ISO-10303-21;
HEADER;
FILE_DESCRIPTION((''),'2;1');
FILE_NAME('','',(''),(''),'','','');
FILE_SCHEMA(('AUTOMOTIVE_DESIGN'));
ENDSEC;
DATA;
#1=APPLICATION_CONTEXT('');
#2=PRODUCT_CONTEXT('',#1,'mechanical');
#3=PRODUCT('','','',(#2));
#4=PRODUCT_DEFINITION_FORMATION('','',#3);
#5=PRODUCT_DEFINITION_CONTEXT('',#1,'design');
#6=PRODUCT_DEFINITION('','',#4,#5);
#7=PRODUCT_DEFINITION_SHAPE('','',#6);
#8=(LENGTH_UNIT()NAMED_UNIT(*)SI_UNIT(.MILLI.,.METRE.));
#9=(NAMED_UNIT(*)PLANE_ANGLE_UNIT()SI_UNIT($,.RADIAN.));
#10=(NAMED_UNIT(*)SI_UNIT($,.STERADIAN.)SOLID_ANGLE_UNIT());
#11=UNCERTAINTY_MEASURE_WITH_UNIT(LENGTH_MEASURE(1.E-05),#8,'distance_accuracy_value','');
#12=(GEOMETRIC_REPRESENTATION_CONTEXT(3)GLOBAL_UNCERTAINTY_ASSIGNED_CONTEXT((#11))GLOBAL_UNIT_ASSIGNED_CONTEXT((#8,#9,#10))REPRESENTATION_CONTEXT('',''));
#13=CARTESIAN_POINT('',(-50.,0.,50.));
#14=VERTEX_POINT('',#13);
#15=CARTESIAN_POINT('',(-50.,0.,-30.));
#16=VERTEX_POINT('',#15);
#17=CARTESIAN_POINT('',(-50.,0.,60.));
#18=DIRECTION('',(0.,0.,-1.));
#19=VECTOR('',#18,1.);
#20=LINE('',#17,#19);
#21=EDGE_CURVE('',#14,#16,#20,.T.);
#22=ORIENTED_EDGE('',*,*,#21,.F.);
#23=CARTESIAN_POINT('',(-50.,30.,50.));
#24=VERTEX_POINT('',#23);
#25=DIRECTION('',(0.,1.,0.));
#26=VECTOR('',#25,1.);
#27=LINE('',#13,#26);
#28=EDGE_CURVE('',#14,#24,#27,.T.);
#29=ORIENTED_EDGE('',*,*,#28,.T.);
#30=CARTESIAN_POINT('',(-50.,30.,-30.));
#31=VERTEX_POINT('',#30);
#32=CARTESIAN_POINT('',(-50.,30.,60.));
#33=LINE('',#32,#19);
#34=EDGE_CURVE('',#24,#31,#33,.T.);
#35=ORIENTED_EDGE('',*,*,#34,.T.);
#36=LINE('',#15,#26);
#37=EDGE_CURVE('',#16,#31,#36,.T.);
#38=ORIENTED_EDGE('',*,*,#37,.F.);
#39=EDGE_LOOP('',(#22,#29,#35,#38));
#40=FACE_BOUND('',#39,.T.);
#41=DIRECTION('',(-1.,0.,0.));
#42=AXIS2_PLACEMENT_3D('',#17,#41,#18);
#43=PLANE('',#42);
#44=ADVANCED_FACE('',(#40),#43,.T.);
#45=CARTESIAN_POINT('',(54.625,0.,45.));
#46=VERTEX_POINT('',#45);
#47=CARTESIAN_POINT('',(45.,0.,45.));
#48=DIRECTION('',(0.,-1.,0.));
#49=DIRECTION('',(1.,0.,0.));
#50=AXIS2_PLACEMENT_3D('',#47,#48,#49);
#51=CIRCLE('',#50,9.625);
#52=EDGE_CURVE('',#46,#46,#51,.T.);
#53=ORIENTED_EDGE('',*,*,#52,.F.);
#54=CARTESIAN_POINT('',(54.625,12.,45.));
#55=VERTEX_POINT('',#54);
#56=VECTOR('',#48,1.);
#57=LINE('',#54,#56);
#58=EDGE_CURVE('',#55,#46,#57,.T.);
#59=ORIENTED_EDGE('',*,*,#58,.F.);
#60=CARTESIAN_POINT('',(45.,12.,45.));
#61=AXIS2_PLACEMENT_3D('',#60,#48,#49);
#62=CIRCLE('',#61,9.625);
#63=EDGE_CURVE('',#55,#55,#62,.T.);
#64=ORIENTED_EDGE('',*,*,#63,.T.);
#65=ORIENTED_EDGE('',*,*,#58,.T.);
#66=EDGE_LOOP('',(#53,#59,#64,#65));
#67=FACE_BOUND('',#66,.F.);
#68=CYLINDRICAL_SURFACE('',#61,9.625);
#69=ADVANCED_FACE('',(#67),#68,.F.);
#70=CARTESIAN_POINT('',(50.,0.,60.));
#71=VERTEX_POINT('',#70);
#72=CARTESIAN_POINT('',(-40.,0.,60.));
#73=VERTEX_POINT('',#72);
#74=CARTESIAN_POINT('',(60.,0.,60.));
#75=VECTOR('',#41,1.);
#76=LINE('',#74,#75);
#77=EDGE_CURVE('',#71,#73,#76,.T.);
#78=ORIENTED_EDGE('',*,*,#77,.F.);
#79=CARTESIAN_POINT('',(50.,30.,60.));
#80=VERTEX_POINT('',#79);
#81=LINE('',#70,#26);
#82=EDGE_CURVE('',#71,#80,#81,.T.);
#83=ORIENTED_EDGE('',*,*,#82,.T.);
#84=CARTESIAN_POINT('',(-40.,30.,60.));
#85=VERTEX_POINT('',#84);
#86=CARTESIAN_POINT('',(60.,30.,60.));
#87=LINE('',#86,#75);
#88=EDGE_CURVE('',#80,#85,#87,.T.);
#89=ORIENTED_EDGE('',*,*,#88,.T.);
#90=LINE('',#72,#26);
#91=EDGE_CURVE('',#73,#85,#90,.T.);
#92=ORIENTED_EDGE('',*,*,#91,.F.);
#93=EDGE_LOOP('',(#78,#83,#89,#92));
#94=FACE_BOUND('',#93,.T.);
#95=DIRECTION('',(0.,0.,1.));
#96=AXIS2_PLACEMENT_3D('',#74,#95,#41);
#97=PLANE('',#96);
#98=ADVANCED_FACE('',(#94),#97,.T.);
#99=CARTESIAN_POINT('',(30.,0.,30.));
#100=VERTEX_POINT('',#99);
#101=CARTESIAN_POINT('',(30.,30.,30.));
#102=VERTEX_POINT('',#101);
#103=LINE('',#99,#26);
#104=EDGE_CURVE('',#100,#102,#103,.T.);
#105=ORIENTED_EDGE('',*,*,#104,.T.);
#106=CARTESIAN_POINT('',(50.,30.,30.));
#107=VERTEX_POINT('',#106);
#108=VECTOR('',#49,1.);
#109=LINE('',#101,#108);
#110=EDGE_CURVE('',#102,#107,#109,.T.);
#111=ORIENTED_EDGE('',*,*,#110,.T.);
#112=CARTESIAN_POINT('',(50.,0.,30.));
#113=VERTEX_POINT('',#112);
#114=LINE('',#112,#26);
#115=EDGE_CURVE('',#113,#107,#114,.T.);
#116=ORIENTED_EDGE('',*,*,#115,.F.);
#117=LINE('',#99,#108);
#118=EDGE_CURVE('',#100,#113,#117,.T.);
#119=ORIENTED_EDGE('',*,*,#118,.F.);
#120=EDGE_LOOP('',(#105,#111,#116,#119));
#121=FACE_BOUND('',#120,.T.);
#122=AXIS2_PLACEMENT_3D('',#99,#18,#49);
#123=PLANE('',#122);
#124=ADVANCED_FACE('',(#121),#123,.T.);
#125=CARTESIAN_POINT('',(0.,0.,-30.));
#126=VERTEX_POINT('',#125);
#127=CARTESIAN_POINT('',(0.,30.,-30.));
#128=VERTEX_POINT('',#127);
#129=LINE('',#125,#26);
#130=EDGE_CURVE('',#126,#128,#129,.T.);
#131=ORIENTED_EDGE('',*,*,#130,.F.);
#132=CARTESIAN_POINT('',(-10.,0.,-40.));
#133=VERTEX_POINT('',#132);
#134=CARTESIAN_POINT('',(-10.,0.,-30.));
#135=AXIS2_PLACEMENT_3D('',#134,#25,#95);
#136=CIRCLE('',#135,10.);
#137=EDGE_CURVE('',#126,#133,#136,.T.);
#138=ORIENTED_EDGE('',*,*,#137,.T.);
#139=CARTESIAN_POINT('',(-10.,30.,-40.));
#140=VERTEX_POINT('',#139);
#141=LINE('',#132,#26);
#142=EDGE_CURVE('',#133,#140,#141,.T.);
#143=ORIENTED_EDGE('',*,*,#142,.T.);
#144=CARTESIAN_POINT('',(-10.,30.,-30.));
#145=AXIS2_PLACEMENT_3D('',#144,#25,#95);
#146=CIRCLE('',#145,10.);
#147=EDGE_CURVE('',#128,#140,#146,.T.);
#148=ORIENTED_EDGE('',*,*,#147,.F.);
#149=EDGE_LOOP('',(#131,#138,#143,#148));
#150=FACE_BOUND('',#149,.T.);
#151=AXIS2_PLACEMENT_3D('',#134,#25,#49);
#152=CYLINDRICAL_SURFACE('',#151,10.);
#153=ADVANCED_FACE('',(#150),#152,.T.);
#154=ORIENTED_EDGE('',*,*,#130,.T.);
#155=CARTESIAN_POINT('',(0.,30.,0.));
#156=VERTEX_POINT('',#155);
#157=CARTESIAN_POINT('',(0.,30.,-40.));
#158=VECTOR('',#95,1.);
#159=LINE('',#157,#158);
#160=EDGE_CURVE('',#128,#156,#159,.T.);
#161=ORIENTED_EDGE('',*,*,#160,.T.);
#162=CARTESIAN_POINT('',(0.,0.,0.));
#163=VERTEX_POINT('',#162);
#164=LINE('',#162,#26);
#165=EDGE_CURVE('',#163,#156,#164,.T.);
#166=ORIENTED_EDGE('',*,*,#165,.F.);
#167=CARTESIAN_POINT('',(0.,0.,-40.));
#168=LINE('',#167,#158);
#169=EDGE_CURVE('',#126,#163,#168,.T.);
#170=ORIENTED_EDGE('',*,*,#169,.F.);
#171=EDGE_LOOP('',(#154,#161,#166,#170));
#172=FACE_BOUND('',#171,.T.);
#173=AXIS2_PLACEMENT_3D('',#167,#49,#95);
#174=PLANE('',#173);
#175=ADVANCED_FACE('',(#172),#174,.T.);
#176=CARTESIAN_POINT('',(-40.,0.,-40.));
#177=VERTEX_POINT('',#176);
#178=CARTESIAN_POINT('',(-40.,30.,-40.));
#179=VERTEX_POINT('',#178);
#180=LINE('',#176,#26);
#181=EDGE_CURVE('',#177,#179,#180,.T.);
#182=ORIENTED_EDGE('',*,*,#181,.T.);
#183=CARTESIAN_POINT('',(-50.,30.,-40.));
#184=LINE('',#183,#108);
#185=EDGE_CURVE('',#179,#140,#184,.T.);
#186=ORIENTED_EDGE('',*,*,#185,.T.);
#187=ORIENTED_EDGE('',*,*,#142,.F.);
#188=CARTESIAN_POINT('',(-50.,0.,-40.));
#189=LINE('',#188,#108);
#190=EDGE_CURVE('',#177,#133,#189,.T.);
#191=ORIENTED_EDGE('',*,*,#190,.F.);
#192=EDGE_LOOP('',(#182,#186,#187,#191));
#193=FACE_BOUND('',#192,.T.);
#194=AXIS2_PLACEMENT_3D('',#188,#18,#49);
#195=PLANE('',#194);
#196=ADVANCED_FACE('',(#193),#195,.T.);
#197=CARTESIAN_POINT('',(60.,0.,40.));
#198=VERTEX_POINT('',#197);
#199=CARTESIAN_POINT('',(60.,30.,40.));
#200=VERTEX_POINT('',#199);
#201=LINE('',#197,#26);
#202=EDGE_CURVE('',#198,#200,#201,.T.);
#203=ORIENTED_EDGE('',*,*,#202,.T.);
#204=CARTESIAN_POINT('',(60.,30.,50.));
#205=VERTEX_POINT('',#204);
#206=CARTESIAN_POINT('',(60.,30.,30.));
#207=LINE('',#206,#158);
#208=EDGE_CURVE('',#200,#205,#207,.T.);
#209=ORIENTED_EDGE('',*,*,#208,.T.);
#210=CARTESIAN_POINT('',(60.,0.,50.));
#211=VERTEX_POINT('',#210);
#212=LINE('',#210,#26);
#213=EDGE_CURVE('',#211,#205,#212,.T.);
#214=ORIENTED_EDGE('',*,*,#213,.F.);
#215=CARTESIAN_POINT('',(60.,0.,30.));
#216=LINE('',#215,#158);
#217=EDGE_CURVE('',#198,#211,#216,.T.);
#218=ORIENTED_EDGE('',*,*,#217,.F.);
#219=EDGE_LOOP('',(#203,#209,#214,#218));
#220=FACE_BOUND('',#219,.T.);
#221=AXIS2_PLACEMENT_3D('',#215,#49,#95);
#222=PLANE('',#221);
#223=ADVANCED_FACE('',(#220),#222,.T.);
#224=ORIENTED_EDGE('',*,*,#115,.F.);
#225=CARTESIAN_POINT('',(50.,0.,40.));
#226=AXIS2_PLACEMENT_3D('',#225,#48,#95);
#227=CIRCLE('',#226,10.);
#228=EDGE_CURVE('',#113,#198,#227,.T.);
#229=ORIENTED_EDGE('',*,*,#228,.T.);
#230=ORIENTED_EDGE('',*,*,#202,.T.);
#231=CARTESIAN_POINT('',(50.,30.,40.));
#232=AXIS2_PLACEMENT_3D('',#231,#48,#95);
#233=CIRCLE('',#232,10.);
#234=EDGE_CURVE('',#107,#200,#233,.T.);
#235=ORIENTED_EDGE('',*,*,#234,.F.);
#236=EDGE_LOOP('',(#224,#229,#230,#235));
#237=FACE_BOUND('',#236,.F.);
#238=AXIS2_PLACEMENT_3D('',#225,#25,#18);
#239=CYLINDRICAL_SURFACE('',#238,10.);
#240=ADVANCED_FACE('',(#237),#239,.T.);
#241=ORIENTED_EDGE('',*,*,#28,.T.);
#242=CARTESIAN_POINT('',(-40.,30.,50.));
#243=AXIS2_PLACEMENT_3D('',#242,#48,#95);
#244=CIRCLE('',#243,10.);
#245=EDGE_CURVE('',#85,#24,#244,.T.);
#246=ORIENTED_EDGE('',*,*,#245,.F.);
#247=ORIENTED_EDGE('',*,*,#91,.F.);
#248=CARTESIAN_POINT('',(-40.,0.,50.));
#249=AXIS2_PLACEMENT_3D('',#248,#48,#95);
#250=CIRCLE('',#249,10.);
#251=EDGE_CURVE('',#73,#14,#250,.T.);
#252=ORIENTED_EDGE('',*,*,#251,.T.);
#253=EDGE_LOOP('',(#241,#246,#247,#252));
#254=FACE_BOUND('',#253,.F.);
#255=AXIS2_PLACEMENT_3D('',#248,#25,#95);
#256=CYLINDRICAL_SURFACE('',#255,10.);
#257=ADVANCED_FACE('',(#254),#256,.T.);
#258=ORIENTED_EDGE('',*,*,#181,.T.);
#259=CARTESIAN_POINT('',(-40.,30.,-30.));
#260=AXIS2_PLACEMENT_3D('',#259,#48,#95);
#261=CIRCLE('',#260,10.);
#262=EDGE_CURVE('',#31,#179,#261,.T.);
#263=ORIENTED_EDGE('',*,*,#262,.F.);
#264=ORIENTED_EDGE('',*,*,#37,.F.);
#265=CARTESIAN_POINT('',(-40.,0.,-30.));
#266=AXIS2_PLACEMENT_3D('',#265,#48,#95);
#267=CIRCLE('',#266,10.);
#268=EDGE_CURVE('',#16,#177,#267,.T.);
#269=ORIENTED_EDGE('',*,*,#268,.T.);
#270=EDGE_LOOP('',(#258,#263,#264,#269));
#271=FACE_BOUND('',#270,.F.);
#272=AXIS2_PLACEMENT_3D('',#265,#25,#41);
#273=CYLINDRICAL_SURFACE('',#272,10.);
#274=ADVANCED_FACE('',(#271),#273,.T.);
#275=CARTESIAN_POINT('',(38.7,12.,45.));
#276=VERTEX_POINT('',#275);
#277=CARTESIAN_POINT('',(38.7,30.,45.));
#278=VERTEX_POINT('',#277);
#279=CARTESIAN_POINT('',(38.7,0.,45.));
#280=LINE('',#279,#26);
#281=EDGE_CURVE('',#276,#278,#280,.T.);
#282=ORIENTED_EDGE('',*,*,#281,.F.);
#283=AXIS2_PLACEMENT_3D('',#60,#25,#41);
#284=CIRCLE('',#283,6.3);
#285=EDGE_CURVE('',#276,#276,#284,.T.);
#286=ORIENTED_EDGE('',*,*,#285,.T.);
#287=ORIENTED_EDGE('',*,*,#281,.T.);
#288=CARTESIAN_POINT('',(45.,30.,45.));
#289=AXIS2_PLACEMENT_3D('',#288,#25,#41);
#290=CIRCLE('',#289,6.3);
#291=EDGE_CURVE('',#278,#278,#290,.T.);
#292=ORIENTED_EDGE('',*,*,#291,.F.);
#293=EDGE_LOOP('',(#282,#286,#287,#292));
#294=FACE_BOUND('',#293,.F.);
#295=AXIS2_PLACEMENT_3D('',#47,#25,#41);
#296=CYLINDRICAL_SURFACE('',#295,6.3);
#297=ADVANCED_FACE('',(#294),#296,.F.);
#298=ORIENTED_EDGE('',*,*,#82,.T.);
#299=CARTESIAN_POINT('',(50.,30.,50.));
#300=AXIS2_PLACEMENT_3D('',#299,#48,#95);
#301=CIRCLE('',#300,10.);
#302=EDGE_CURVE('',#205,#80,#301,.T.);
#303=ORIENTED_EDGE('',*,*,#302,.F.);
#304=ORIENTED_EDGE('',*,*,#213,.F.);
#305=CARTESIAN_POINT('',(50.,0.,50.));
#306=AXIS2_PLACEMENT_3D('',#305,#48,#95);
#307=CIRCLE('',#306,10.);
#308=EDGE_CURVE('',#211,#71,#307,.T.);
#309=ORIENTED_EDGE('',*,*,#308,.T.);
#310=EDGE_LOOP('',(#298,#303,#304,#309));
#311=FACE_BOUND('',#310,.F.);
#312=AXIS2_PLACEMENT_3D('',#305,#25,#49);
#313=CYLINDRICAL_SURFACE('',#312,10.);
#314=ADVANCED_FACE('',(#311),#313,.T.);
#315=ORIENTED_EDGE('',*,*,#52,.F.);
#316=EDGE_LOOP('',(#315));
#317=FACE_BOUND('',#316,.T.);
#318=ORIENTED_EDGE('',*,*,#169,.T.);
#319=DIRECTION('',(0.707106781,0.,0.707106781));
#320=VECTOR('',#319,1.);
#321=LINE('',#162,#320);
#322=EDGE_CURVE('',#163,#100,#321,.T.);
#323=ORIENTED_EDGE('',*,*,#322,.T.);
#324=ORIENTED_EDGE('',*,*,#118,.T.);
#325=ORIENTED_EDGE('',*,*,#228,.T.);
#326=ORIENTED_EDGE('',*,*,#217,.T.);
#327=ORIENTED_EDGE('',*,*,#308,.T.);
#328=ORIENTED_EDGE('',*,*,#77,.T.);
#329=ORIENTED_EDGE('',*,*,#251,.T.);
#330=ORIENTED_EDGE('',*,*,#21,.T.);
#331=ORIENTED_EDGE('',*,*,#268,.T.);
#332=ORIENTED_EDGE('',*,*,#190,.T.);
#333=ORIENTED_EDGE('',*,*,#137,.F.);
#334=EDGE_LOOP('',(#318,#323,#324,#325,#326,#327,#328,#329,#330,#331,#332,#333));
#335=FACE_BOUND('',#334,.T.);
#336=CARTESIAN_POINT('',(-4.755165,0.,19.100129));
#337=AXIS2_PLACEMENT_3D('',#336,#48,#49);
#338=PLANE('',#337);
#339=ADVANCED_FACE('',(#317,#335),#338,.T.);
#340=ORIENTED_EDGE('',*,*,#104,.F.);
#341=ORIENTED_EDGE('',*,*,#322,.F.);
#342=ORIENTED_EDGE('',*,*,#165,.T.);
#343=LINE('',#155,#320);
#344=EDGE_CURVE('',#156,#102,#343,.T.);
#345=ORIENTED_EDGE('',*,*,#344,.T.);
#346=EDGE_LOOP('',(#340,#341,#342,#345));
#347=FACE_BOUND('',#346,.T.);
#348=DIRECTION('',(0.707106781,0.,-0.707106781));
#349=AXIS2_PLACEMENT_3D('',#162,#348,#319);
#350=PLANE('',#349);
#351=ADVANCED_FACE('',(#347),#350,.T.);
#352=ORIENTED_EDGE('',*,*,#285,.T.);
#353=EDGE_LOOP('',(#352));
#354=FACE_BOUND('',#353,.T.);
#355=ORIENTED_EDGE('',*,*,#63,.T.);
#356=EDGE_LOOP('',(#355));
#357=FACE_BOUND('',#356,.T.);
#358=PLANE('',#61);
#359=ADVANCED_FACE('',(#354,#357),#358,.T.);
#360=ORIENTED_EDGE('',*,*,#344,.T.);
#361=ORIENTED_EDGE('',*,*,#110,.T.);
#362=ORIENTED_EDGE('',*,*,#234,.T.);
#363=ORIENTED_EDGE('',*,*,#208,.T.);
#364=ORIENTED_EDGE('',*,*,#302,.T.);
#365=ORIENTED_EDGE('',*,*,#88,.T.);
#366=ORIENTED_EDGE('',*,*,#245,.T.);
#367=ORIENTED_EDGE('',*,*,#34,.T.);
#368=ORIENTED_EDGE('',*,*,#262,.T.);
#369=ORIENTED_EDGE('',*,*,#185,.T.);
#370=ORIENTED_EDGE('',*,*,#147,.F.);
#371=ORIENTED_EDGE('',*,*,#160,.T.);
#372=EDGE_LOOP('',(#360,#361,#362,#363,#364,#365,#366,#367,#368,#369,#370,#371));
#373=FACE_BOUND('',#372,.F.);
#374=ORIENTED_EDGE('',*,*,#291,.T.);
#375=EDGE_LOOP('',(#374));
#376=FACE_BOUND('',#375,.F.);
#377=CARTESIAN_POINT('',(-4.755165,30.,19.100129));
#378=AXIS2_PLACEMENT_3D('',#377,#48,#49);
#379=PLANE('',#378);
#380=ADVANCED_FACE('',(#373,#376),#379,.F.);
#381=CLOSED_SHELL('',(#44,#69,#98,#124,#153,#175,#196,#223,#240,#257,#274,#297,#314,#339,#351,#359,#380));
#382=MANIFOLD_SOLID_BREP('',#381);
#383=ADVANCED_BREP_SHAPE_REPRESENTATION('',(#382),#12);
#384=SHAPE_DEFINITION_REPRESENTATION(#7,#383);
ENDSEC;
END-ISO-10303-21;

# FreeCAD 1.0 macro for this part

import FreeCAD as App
import Part
import Sketcher

V = App.Vector
Q = App.Units.Quantity


def edges_at(feature, points):
    """Names of the edges that pass closest to the given points."""
    edges = feature.Shape.Edges
    near = lambda p: min(range(len(edges)), key=lambda i: edges[i].distToShape(Part.Vertex(*p))[0])
    return sorted({f"Edge{near(p) + 1}" for p in points})


def add_polygon(sketch, points):
    """Adds a closed chain of lines whose ends are joined by coincident constraints."""
    first, n = sketch.GeometryCount, len(points)
    for a, b in zip(points, points[1:] + points[:1]):
        sketch.addGeometry(Part.LineSegment(App.Vector(*a, 0), App.Vector(*b, 0)), False)
    for i in range(n):
        sketch.addConstraint(Sketcher.Constraint("Coincident", first + i, 2, first + (i + 1) % n, 1))

doc = App.newDocument("Part")
params = doc.addObject("Spreadsheet::Sheet", "Params")
for row, (alias, value) in enumerate([
    ("sketch1_width", "30 mm"),
    ("sketch1_width2", "110 mm"),
    ("sketch1_width3", "50 mm"),
    ("sketch1_height", "40 mm"),
    ("sketch1_height2", "100 mm"),
    ("pad1_length", "30 mm"),
    ("fillet_radius", "10 mm"),
    ("sketch2_diameter", "12.6 mm"),
    ("hole_diameter", "12.6 mm"),
    ("hole_cbore_diameter", "19.25 mm"),
    ("hole_cbore_depth", "12 mm"),
], start=1):
    params.set(f"A{row}", alias)
    params.set(f"B{row}", "=" + value)
    params.setAlias(f"B{row}", alias)

body = doc.addObject("PartDesign::Body", "Body")

sketch1 = body.newObject("Sketcher::SketchObject", "Sketch")
sketch1.AttachmentSupport = (doc.getObject("XZ_Plane"), [""])
sketch1.MapMode = "FlatFace"
add_polygon(sketch1, [(0, -40), (0, 0), (30, 30), (60, 30), (60, 60), (-50, 60), (-50, -40)])
sketch1.addConstraint([
    Sketcher.Constraint("Vertical", 0),
    Sketcher.Constraint("Horizontal", 2),
    Sketcher.Constraint("Vertical", 3),
    Sketcher.Constraint("Horizontal", 4),
    Sketcher.Constraint("Vertical", 5),
    Sketcher.Constraint("Horizontal", 6),
    Sketcher.Constraint("Coincident", 0, 2, -1, 1),
    Sketcher.Constraint("Equal", 2, 3),
    Sketcher.Constraint("DistanceX", 2, 1, 2, 2, Q("30 mm")),
    Sketcher.Constraint("DistanceX", 4, 2, 4, 1, Q("110 mm")),
    Sketcher.Constraint("DistanceX", 6, 1, 6, 2, Q("50 mm")),
    Sketcher.Constraint("DistanceY", 0, 1, 0, 2, Q("40 mm")),
    Sketcher.Constraint("DistanceY", 5, 2, 5, 1, Q("100 mm")),
])
sketch1.setExpression("Constraints[15]", "Params.sketch1_width")
sketch1.setExpression("Constraints[16]", "Params.sketch1_width2")
sketch1.setExpression("Constraints[17]", "Params.sketch1_width3")
sketch1.setExpression("Constraints[18]", "Params.sketch1_height")
sketch1.setExpression("Constraints[19]", "Params.sketch1_height2")
pad1 = body.newObject("PartDesign::Pad", "Pad")
pad1.Profile = sketch1
pad1.setExpression("Length", "Params.pad1_length")
pad1.Reversed = True
doc.recompute()

fillet = body.newObject("PartDesign::Fillet", "Fillet")
fillet.Base = (pad1, edges_at(pad1, [
    (-50, 15, -40),
    (0, 15, -40),
    (-50, 15, 60),
    (60, 15, 60),
    (60, 15, 30),
]))
fillet.setExpression("Radius", "Params.fillet_radius")

sketch2 = body.newObject("Sketcher::SketchObject", "Sketch001")
sketch2.AttachmentSupport = (doc.getObject("XZ_Plane"), [""])
sketch2.MapMode = "FlatFace"
sketch2.addGeometry(Part.Circle(V(45, 45, 0), V(0, 0, 1), 6.3), False)
sketch2.addConstraint([
    Sketcher.Constraint("Diameter", 0, Q("12.6 mm")),
    Sketcher.Constraint("DistanceX", -1, 1, 0, 3, Q("45 mm")),
    Sketcher.Constraint("DistanceY", -1, 1, 0, 3, Q("45 mm")),
])
sketch2.setExpression("Constraints[0]", "Params.sketch2_diameter")
doc.recompute()
hole = body.newObject("PartDesign::Hole", "Hole")
hole.Profile = sketch2
hole.ThreadType = "None"
hole.setExpression("Diameter", "Params.hole_diameter")
hole.DepthType = "ThroughAll"
hole.HoleCutType = "Counterbore"
hole.setExpression("HoleCutDiameter", "Params.hole_cbore_diameter")
hole.setExpression("HoleCutDepth", "Params.hole_cbore_depth")

doc.recompute()
